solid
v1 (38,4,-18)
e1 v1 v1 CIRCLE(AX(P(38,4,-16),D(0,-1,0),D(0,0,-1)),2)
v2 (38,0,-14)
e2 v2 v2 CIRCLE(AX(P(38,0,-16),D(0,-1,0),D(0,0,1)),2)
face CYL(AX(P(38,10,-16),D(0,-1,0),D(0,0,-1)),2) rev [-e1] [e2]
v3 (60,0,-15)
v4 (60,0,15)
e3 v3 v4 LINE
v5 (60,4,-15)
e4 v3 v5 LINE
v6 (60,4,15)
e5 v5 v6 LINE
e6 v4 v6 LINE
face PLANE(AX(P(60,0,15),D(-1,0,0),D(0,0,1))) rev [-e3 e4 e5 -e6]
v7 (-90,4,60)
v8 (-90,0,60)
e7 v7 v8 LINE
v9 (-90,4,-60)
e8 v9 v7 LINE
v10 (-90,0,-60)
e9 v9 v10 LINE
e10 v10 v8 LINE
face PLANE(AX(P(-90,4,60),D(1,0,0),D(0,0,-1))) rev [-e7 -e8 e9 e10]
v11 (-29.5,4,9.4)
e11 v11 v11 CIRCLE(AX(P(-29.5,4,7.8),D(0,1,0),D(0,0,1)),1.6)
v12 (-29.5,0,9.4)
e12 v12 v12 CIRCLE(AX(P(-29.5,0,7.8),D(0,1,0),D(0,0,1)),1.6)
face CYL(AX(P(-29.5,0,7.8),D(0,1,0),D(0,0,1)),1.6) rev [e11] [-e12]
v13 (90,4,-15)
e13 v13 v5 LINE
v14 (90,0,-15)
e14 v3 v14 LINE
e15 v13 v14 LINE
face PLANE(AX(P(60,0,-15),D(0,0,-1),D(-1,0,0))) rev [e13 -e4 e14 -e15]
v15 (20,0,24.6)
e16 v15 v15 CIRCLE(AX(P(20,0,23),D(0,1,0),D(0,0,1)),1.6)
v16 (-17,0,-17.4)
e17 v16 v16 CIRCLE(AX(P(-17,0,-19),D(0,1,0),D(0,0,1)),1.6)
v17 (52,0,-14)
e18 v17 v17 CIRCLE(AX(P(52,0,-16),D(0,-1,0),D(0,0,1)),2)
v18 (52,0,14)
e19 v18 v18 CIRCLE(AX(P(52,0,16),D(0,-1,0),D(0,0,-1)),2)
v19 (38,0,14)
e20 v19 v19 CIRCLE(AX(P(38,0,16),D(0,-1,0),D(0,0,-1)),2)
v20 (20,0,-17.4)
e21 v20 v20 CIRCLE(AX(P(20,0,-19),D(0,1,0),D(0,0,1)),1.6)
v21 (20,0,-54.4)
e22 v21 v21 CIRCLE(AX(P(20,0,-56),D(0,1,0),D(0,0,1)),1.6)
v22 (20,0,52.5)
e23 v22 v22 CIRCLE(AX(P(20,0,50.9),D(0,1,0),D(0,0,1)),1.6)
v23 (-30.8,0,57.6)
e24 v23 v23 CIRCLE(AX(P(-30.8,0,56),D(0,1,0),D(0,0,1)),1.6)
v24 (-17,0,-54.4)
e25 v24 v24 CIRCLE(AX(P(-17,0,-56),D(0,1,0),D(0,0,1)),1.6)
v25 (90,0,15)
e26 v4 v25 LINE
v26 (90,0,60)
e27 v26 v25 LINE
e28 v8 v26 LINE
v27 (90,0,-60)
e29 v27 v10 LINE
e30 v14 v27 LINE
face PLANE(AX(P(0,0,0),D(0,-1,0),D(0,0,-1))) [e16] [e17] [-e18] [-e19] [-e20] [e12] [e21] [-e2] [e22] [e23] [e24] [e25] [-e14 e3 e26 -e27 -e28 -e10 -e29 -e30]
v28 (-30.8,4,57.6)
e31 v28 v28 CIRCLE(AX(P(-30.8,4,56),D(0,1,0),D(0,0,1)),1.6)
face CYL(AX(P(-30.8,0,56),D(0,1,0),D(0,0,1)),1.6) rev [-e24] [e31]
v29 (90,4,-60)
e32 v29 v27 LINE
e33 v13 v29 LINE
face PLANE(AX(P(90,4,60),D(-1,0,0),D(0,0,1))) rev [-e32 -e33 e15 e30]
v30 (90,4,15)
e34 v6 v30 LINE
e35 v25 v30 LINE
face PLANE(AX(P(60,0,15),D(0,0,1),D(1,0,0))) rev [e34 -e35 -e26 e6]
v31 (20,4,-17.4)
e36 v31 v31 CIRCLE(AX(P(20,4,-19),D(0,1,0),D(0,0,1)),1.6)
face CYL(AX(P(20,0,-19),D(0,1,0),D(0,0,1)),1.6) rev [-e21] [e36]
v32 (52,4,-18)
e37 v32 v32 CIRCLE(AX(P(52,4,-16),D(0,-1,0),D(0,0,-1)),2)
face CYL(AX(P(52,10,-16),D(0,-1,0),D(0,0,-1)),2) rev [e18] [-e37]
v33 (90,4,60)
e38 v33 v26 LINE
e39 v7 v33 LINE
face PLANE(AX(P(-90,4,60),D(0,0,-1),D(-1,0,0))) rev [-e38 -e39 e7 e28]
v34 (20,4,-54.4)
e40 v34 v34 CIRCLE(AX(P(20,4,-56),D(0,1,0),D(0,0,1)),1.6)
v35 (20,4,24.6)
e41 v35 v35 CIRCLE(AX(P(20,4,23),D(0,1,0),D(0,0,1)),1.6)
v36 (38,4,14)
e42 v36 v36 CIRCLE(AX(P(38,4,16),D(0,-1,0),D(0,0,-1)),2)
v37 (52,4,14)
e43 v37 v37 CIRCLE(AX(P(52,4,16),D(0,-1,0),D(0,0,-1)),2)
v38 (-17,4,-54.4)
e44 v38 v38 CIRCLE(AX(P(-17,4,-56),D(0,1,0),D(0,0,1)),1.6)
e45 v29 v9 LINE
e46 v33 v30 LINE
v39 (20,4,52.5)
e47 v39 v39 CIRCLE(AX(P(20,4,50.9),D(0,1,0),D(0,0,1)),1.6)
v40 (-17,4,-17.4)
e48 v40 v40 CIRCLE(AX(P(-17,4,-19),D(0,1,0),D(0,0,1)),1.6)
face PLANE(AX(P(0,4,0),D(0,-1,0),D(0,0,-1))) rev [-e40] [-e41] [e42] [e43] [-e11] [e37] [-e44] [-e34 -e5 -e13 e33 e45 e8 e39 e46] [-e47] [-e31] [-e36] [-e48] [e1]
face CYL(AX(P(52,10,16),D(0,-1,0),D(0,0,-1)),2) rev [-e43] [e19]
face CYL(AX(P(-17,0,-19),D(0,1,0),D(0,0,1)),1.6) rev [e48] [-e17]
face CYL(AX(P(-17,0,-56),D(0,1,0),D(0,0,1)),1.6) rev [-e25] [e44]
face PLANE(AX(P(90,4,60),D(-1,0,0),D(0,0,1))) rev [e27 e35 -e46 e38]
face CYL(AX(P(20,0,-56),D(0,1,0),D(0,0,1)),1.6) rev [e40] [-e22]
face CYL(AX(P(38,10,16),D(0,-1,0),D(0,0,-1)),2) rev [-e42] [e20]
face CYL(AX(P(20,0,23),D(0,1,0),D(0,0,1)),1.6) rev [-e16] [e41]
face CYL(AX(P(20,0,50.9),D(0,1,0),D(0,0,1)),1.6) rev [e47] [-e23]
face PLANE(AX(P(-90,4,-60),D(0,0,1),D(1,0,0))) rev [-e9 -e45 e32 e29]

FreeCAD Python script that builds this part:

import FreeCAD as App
import Part
import Sketcher

V = App.Vector


def add_polygon(sketch, points):
    """Adds a closed chain of lines whose ends are joined by coincident constraints."""
    first, n = sketch.GeometryCount, len(points)
    for a, b in zip(points, points[1:] + points[:1]):
        sketch.addGeometry(Part.LineSegment(App.Vector(*a, 0), App.Vector(*b, 0)), False)
    for i in range(n):
        sketch.addConstraint(Sketcher.Constraint("Coincident", first + i, 2, first + (i + 1) % n, 1))

doc = App.newDocument("Part")
body = doc.addObject("PartDesign::Body", "Body")

sketch1 = body.newObject("Sketcher::SketchObject", "Sketch")
sketch1.AttachmentSupport = (doc.getObject("XZ_Plane"), [""])
sketch1.MapMode = "FlatFace"
add_polygon(sketch1, [(-90, -60), (-90, 60), (90, 60), (90, -60)])
sketch1.addConstraint([
    Sketcher.Constraint("Vertical", 0),
    Sketcher.Constraint("Horizontal", 1),
    Sketcher.Constraint("Vertical", 2),
    Sketcher.Constraint("Horizontal", 3),
    Sketcher.Constraint("Symmetric", 0, 2, 2, 2, -1, 1),
    Sketcher.Constraint("DistanceX", 1, 1, 1, 2, 180.0),
    Sketcher.Constraint("DistanceY", 0, 1, 0, 2, 120.0),
])
pad1 = body.newObject("PartDesign::Pad", "Pad")
pad1.Profile = sketch1
pad1.Length = 4
pad1.Reversed = True

sketch2 = body.newObject("Sketcher::SketchObject", "Sketch001")
sketch2.AttachmentSupport = (doc.getObject("XZ_Plane"), [""])
sketch2.MapMode = "FlatFace"
sketch2.AttachmentOffset = App.Placement(V(0, 0, -4), App.Rotation())
add_polygon(sketch2, [(60, -15), (60, 15), (100, 15), (100, -15)])
sketch2.addConstraint([
    Sketcher.Constraint("Vertical", 0),
    Sketcher.Constraint("Horizontal", 1),
    Sketcher.Constraint("Vertical", 2),
    Sketcher.Constraint("Horizontal", 3),
    Sketcher.Constraint("DistanceX", 1, 1, 1, 2, 40.0),
    Sketcher.Constraint("DistanceY", 0, 1, 0, 2, 30.0),
    Sketcher.Constraint("DistanceX", -1, 1, 0, 2, 60.0),
    Sketcher.Constraint("DistanceY", -1, 1, 0, 2, 15.0),
])
pocket1 = body.newObject("PartDesign::Pocket", "Pocket")
pocket1.Profile = sketch2
pocket1.Length = 4
pocket1.Reversed = True

sketch3 = body.newObject("Sketcher::SketchObject", "Sketch002")
sketch3.AttachmentSupport = (doc.getObject("XZ_Plane"), [""])
sketch3.MapMode = "FlatFace"
sketch3.AttachmentOffset = App.Placement(V(0, 0, -4), App.Rotation())
sketch3.addGeometry([
    Part.Circle(V(-17, -56, 0), V(0, 0, 1), 1.6),
    Part.Circle(V(20, -56, 0), V(0, 0, 1), 1.6),
    Part.Circle(V(20, -19, 0), V(0, 0, 1), 1.6),
    Part.Circle(V(-17, -19, 0), V(0, 0, 1), 1.6),
], False)
sketch3.addConstraint([
    Sketcher.Constraint("Equal", 0, 1),
    Sketcher.Constraint("Equal", 1, 2),
    Sketcher.Constraint("Equal", 2, 3),
    Sketcher.Constraint("Horizontal", 0, 3, 1, 3),
    Sketcher.Constraint("Horizontal", 2, 3, 3, 3),
    Sketcher.Constraint("Vertical", 1, 3, 2, 3),
    Sketcher.Constraint("Vertical", 0, 3, 3, 3),
    Sketcher.Constraint("Diameter", 0, 3.2),
    Sketcher.Constraint("DistanceX", 0, 3, -1, 1, 17.0),
    Sketcher.Constraint("DistanceY", 0, 3, -1, 1, 56.0),
    Sketcher.Constraint("DistanceX", -1, 1, 1, 3, 20.0),
    Sketcher.Constraint("DistanceY", 2, 3, -1, 1, 19.0),
])
pocket2 = body.newObject("PartDesign::Pocket", "Pocket001")
pocket2.Profile = sketch3
pocket2.Length = 4
pocket2.Reversed = True

sketch4 = body.newObject("Sketcher::SketchObject", "Sketch003")
sketch4.AttachmentSupport = (doc.getObject("XZ_Plane"), [""])
sketch4.MapMode = "FlatFace"
sketch4.AttachmentOffset = App.Placement(V(0, 0, -4), App.Rotation())
sketch4.addGeometry([
    Part.Circle(V(-29.5, 7.8, 0), V(0, 0, 1), 1.6),
    Part.Circle(V(20, 23, 0), V(0, 0, 1), 1.6),
    Part.Circle(V(20, 50.9, 0), V(0, 0, 1), 1.6),
    Part.Circle(V(-30.8, 56, 0), V(0, 0, 1), 1.6),
], False)
sketch4.addConstraint([
    Sketcher.Constraint("Equal", 0, 1),
    Sketcher.Constraint("Equal", 1, 2),
    Sketcher.Constraint("Equal", 2, 3),
    Sketcher.Constraint("Vertical", 1, 3, 2, 3),
    Sketcher.Constraint("Diameter", 0, 3.2),
    Sketcher.Constraint("DistanceX", -1, 1, 1, 3, 20.0),
    Sketcher.Constraint("DistanceY", -1, 1, 1, 3, 23.0),
    Sketcher.Constraint("DistanceY", -1, 1, 3, 3, 56.0),
    Sketcher.Constraint("DistanceX", 0, 3, -1, 1, 29.5),
    Sketcher.Constraint("DistanceY", -1, 1, 0, 3, 7.8),
    Sketcher.Constraint("DistanceY", -1, 1, 2, 3, 50.9),
    Sketcher.Constraint("DistanceX", 3, 3, -1, 1, 30.8),
])
pocket3 = body.newObject("PartDesign::Pocket", "Pocket002")
pocket3.Profile = sketch4
pocket3.Length = 4
pocket3.Reversed = True

sketch5 = body.newObject("Sketcher::SketchObject", "Sketch004")
sketch5.AttachmentSupport = (doc.getObject("XZ_Plane"), [""])
sketch5.MapMode = "FlatFace"
sketch5.addGeometry([
    Part.Circle(V(52, 16, 0), V(0, 0, 1), 2),
    Part.Circle(V(38, 16, 0), V(0, 0, 1), 2),
    Part.Circle(V(52, -16, 0), V(0, 0, 1), 2),
    Part.Circle(V(38, -16, 0), V(0, 0, 1), 2),
], False)
sketch5.addConstraint([
    Sketcher.Constraint("Equal", 0, 1),
    Sketcher.Constraint("Equal", 1, 2),
    Sketcher.Constraint("Equal", 2, 3),
    Sketcher.Constraint("Symmetric", 0, 3, 2, 3, -1),
    Sketcher.Constraint("Symmetric", 1, 3, 3, 3, -1),
    Sketcher.Constraint("Horizontal", 0, 3, 1, 3),
    Sketcher.Constraint("Diameter", 0, 4.0),
    Sketcher.Constraint("DistanceX", -1, 1, 0, 3, 52.0),
    Sketcher.Constraint("DistanceY", -1, 1, 0, 3, 16.0),
    Sketcher.Constraint("DistanceX", -1, 1, 1, 3, 38.0),
])
pocket4 = body.newObject("PartDesign::Pocket", "Pocket003")
pocket4.Profile = sketch5
pocket4.Length = 10

doc.recompute()
